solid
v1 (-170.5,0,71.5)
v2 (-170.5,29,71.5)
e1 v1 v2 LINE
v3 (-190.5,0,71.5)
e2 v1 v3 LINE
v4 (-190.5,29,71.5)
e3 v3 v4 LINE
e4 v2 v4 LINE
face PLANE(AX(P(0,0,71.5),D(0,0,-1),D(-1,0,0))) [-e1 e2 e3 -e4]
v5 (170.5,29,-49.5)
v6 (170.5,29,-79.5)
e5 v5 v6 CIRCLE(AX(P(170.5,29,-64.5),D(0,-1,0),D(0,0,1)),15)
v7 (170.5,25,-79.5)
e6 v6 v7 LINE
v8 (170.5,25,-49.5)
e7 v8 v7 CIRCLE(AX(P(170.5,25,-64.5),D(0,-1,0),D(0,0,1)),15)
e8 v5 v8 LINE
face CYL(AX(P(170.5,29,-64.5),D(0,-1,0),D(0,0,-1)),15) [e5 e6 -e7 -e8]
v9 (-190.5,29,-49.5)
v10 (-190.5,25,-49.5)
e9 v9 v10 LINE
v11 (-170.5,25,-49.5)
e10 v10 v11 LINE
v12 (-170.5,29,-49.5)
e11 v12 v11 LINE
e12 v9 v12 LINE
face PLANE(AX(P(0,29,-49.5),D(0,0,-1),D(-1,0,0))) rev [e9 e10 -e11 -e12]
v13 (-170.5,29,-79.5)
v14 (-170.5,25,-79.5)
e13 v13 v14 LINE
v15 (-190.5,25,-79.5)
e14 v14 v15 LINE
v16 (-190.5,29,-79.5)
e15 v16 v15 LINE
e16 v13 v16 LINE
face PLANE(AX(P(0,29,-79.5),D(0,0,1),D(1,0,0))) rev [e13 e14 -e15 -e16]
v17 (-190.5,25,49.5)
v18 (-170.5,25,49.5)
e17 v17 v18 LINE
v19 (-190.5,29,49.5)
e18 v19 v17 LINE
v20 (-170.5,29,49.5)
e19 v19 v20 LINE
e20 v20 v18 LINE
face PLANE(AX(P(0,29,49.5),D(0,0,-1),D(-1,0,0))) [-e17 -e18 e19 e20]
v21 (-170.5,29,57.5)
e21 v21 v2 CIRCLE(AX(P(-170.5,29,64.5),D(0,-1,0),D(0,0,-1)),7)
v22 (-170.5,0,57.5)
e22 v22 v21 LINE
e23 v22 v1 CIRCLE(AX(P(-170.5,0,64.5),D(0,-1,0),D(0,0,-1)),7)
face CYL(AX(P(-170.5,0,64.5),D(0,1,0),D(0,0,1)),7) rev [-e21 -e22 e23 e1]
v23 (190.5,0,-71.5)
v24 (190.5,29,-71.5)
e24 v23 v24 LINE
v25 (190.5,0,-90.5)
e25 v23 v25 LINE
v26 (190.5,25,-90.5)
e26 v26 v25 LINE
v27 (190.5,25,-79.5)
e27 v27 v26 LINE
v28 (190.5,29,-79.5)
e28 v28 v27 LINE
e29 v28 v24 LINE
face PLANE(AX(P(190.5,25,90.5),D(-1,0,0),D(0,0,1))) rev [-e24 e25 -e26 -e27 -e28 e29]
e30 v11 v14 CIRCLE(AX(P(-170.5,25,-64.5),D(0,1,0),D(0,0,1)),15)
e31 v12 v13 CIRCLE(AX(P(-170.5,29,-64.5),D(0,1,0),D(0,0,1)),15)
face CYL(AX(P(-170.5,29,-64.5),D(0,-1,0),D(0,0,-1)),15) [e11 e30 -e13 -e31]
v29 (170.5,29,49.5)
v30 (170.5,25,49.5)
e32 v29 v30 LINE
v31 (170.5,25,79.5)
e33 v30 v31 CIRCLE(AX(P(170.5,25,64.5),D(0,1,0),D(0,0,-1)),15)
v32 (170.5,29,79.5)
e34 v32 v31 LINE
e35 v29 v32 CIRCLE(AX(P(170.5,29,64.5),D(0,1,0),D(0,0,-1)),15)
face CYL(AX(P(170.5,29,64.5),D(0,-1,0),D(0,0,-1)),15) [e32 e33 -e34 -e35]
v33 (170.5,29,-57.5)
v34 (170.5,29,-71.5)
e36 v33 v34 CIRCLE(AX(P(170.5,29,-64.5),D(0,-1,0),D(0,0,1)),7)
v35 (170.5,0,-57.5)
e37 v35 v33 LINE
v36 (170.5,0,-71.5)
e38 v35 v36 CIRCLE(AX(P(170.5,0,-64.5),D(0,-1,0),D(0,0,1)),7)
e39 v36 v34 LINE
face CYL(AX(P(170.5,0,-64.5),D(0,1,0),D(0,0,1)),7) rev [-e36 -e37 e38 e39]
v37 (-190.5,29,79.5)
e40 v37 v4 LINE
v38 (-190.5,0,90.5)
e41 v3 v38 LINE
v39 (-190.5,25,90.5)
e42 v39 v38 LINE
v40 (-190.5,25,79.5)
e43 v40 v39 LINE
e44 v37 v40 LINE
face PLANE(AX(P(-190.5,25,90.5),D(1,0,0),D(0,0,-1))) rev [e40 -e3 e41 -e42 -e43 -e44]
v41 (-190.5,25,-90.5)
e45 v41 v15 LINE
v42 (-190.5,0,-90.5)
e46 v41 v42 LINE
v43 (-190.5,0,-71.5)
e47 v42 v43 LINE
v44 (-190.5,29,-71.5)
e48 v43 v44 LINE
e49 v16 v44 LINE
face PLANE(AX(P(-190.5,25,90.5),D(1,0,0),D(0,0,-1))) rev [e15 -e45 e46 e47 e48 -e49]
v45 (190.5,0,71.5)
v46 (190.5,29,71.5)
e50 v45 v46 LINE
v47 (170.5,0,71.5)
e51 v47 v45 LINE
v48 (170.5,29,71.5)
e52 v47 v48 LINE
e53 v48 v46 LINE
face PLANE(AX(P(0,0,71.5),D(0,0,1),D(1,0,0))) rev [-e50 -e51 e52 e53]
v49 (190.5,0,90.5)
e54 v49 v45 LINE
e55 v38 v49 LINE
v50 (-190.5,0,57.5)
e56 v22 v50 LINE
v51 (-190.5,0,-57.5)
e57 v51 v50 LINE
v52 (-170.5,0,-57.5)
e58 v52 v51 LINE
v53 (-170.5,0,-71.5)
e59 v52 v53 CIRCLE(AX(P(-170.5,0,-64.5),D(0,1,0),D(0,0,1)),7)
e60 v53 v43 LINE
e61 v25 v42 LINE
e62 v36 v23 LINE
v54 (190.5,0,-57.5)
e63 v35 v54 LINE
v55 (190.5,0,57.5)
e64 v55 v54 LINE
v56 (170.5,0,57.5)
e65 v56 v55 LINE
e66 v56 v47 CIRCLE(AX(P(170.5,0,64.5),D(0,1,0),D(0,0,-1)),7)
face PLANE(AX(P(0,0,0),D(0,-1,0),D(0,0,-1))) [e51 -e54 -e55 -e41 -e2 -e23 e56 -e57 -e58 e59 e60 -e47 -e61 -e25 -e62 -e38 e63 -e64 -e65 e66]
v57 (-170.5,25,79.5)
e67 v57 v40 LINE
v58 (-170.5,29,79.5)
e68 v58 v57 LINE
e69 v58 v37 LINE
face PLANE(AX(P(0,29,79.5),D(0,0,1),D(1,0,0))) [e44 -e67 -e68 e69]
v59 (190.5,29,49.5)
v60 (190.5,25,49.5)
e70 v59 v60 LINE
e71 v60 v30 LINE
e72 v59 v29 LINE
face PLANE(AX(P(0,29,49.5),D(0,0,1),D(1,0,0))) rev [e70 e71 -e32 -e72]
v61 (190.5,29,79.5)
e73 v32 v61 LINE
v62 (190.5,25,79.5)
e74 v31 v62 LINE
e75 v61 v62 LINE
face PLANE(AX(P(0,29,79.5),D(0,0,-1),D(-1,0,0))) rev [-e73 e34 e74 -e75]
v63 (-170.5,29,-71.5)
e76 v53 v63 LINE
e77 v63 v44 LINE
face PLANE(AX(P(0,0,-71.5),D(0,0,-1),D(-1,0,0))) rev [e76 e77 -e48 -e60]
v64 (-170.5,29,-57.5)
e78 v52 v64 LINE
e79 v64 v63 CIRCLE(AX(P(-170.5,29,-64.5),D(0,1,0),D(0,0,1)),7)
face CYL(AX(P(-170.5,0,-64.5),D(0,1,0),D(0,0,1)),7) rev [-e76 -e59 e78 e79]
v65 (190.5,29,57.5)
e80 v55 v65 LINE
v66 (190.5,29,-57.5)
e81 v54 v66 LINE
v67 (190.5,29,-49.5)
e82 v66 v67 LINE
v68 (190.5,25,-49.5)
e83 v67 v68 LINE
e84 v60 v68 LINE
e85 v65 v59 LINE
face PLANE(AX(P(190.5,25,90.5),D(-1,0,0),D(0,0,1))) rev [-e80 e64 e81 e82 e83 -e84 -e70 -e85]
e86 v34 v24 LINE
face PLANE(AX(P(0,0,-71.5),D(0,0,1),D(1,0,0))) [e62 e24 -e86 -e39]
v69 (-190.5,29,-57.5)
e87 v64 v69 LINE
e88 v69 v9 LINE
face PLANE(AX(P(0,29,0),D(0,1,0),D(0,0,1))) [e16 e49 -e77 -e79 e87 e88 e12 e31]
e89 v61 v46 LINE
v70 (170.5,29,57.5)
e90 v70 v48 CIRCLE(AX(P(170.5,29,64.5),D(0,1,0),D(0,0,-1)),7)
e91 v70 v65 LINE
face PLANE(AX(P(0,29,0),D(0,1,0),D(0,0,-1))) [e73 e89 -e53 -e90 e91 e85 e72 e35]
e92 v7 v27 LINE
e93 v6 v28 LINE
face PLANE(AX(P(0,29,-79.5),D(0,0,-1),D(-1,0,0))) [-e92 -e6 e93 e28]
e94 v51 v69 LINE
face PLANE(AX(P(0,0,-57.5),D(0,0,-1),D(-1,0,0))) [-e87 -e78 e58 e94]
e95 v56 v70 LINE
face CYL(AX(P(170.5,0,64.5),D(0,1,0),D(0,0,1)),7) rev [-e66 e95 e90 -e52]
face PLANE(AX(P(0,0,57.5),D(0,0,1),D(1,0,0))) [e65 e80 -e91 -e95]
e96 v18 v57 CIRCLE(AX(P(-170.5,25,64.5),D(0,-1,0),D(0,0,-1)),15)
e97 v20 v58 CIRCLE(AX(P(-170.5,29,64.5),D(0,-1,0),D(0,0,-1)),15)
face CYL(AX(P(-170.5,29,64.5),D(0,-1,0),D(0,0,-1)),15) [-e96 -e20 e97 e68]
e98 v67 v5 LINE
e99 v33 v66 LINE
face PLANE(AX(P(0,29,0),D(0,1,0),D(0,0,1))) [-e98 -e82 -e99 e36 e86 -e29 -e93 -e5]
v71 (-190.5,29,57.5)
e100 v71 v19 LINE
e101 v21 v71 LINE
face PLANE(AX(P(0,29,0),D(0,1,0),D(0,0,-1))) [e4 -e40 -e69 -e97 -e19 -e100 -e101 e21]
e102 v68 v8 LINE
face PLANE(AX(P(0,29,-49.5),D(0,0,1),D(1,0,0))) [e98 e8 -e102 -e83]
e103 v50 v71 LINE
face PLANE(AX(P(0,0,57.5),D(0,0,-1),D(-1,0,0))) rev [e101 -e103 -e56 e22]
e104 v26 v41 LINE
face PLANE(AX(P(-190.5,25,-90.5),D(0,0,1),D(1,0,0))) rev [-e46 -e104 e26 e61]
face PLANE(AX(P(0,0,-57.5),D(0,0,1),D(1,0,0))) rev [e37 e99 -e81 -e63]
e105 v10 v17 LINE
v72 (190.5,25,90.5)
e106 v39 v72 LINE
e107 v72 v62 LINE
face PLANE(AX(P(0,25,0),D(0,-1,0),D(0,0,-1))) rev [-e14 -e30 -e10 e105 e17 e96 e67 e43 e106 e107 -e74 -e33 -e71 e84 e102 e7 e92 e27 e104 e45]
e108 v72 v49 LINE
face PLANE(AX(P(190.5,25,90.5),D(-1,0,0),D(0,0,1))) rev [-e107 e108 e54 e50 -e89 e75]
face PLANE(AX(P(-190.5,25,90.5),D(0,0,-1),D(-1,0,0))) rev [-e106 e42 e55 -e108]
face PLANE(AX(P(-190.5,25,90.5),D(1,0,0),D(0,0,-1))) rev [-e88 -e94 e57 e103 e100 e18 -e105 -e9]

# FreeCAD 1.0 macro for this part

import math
import FreeCAD as App
import Part
import Sketcher


def add_polygon(sketch, points):
    """Adds a closed chain of lines whose ends are joined by coincident constraints."""
    first, n = sketch.GeometryCount, len(points)
    for a, b in zip(points, points[1:] + points[:1]):
        sketch.addGeometry(Part.LineSegment(App.Vector(*a, 0), App.Vector(*b, 0)), False)
    for i in range(n):
        sketch.addConstraint(Sketcher.Constraint("Coincident", first + i, 2, first + (i + 1) % n, 1))

doc = App.newDocument("Part")
body = doc.addObject("PartDesign::Body", "Body")

sketch1 = body.newObject("Sketcher::SketchObject", "Sketch")
sketch1.AttachmentSupport = (doc.getObject("XZ_Plane"), [""])
sketch1.MapMode = "FlatFace"
add_polygon(sketch1, [(-190, -90), (-190, 90), (190, 90), (190, -90)])
sketch1.addConstraint([
    Sketcher.Constraint("Vertical", 0),
    Sketcher.Constraint("Horizontal", 1),
    Sketcher.Constraint("Vertical", 2),
    Sketcher.Constraint("Horizontal", 3),
    Sketcher.Constraint("Symmetric", 0, 2, 2, 2, -1, 1),
    Sketcher.Constraint("DistanceX", 1, 1, 1, 2, 381.0),
    Sketcher.Constraint("DistanceY", 0, 1, 0, 2, 181.0),
])
pad1 = body.newObject("PartDesign::Pad", "Pad")
pad1.Profile = sketch1
pad1.Length = 25
pad1.Reversed = True

sketch2 = body.newObject("Sketcher::SketchObject", "Sketch001")
sketch2.AttachmentSupport = (doc.getObject("XZ_Plane"), [""])
sketch2.MapMode = "FlatFace"
sketch2.AttachmentOffset = App.Placement(App.Vector(0, 0, -25), App.Rotation())
sketch2.addGeometry([
    Part.LineSegment(App.Vector(-190, -58, 0), App.Vector(-170, -58, 0)),
    Part.ArcOfCircle(Part.Circle(App.Vector(-170, -64, 0), App.Vector(0, 0, 1), 7), math.radians(-90), math.radians(90)),
    Part.LineSegment(App.Vector(-170, -72, 0), App.Vector(-190, -72, 0)),
    Part.LineSegment(App.Vector(-190, -72, 0), App.Vector(-190, -58, 0)),
], False)
sketch2.addConstraint([
    Sketcher.Constraint("Tangent", 0, 2, 1, 2),
    Sketcher.Constraint("Tangent", 1, 1, 2, 1),
    Sketcher.Constraint("Coincident", 2, 2, 3, 1),
    Sketcher.Constraint("Coincident", 3, 2, 0, 1),
    Sketcher.Constraint("Horizontal", 0),
    Sketcher.Constraint("Horizontal", 2),
    Sketcher.Constraint("Vertical", 3),
    Sketcher.Constraint("Radius", 1, 7.0),
    Sketcher.Constraint("DistanceX", 0, 1, 0, 2, 20.0),
    Sketcher.Constraint("DistanceX", 1, 3, -1, 1, 170.5),
    Sketcher.Constraint("DistanceY", 1, 3, -1, 1, 64.5),
])
pocket1 = body.newObject("PartDesign::Pocket", "Pocket")
pocket1.Profile = sketch2
pocket1.Length = 25
pocket1.Reversed = True

sketch3 = body.newObject("Sketcher::SketchObject", "Sketch002")
sketch3.AttachmentSupport = (doc.getObject("XZ_Plane"), [""])
sketch3.MapMode = "FlatFace"
sketch3.AttachmentOffset = App.Placement(App.Vector(0, 0, -29), App.Rotation())
sketch3.addGeometry([
    Part.ArcOfCircle(Part.Circle(App.Vector(-170, -64, 0), App.Vector(0, 0, 1), 7), math.radians(-90), math.radians(90)),
    Part.LineSegment(App.Vector(-170, -58, 0), App.Vector(-190, -58, 0)),
    Part.LineSegment(App.Vector(-190, -58, 0), App.Vector(-190, -50, 0)),
    Part.LineSegment(App.Vector(-190, -50, 0), App.Vector(-170, -50, 0)),
    Part.ArcOfCircle(Part.Circle(App.Vector(-170, -64, 0), App.Vector(0, 0, 1), 15), math.radians(-90), math.radians(90)),
    Part.LineSegment(App.Vector(-170, -80, 0), App.Vector(-190, -80, 0)),
    Part.LineSegment(App.Vector(-190, -80, 0), App.Vector(-190, -72, 0)),
    Part.LineSegment(App.Vector(-190, -72, 0), App.Vector(-170, -72, 0)),
], False)
sketch3.addConstraint([
    Sketcher.Constraint("Tangent", 0, 2, 1, 1),
    Sketcher.Constraint("Coincident", 1, 2, 2, 1),
    Sketcher.Constraint("Coincident", 2, 2, 3, 1),
    Sketcher.Constraint("Tangent", 3, 2, 4, 2),
    Sketcher.Constraint("Tangent", 4, 1, 5, 1),
    Sketcher.Constraint("Coincident", 5, 2, 6, 1),
    Sketcher.Constraint("Coincident", 6, 2, 7, 1),
    Sketcher.Constraint("Tangent", 7, 2, 0, 1),
    Sketcher.Constraint("Horizontal", 1),
    Sketcher.Constraint("Vertical", 2),
    Sketcher.Constraint("Horizontal", 3),
    Sketcher.Constraint("Horizontal", 5),
    Sketcher.Constraint("Vertical", 6),
    Sketcher.Constraint("Horizontal", 7),
    Sketcher.Constraint("Coincident", 4, 3, 0, 3),
    Sketcher.Constraint("Vertical", 2, 2, 5, 2),
    Sketcher.Constraint("Radius", 0, 7.0),
    Sketcher.Constraint("Radius", 4, 15.0),
    Sketcher.Constraint("DistanceX", 1, 2, 1, 1, 20.0),
    Sketcher.Constraint("DistanceX", 0, 3, -1, 1, 170.5),
    Sketcher.Constraint("DistanceY", 0, 3, -1, 1, 64.5),
])
pad2 = body.newObject("PartDesign::Pad", "Pad001")
pad2.Profile = sketch3
pad2.Length = 4
doc.recompute()

mirrored = body.newObject("PartDesign::Mirrored", "Mirrored")
mirrored.Originals = [pocket1, pad2]
mirrored.MirrorPlane = (doc.getObject("XY_Plane"), [""])
body.Tip = mirrored
doc.recompute()

mirrored2 = body.newObject("PartDesign::Mirrored", "Mirrored001")
mirrored2.Originals = [pad2]
mirrored2.MirrorPlane = (doc.getObject("YZ_Plane"), [""])
body.Tip = mirrored2

sketch4 = body.newObject("Sketcher::SketchObject", "Sketch003")
sketch4.AttachmentSupport = (doc.getObject("XZ_Plane"), [""])
sketch4.MapMode = "FlatFace"
sketch4.AttachmentOffset = App.Placement(App.Vector(0, 0, -25), App.Rotation())
sketch4.addGeometry([
    Part.LineSegment(App.Vector(190, 58, 0), App.Vector(170, 58, 0)),
    Part.ArcOfCircle(Part.Circle(App.Vector(170, 64, 0), App.Vector(0, 0, 1), 7), math.radians(90), math.radians(270)),
    Part.LineSegment(App.Vector(170, 72, 0), App.Vector(190, 72, 0)),
    Part.LineSegment(App.Vector(190, 72, 0), App.Vector(190, 58, 0)),
], False)
sketch4.addConstraint([
    Sketcher.Constraint("Tangent", 0, 2, 1, 2),
    Sketcher.Constraint("Tangent", 1, 1, 2, 1),
    Sketcher.Constraint("Coincident", 2, 2, 3, 1),
    Sketcher.Constraint("Coincident", 3, 2, 0, 1),
    Sketcher.Constraint("Horizontal", 0),
    Sketcher.Constraint("Horizontal", 2),
    Sketcher.Constraint("Vertical", 3),
    Sketcher.Constraint("Radius", 1, 7.0),
    Sketcher.Constraint("DistanceX", 0, 2, 0, 1, 20.0),
    Sketcher.Constraint("DistanceX", -1, 1, 1, 3, 170.5),
    Sketcher.Constraint("DistanceY", -1, 1, 1, 3, 64.5),
])
pocket2 = body.newObject("PartDesign::Pocket", "Pocket001")
pocket2.Profile = sketch4
pocket2.Length = 25
pocket2.Reversed = True

sketch5 = body.newObject("Sketcher::SketchObject", "Sketch004")
sketch5.AttachmentSupport = (doc.getObject("XZ_Plane"), [""])
sketch5.MapMode = "FlatFace"
sketch5.AttachmentOffset = App.Placement(App.Vector(0, 0, -29), App.Rotation())
sketch5.addGeometry([
    Part.ArcOfCircle(Part.Circle(App.Vector(170, 64, 0), App.Vector(0, 0, 1), 7), math.radians(90), math.radians(270)),
    Part.LineSegment(App.Vector(170, 58, 0), App.Vector(190, 58, 0)),
    Part.LineSegment(App.Vector(190, 58, 0), App.Vector(190, 50, 0)),
    Part.LineSegment(App.Vector(190, 50, 0), App.Vector(170, 50, 0)),
    Part.ArcOfCircle(Part.Circle(App.Vector(170, 64, 0), App.Vector(0, 0, 1), 15), math.radians(90), math.radians(270)),
    Part.LineSegment(App.Vector(170, 80, 0), App.Vector(190, 80, 0)),
    Part.LineSegment(App.Vector(190, 80, 0), App.Vector(190, 72, 0)),
    Part.LineSegment(App.Vector(190, 72, 0), App.Vector(170, 72, 0)),
], False)
sketch5.addConstraint([
    Sketcher.Constraint("Tangent", 0, 2, 1, 1),
    Sketcher.Constraint("Coincident", 1, 2, 2, 1),
    Sketcher.Constraint("Coincident", 2, 2, 3, 1),
    Sketcher.Constraint("Tangent", 3, 2, 4, 2),
    Sketcher.Constraint("Tangent", 4, 1, 5, 1),
    Sketcher.Constraint("Coincident", 5, 2, 6, 1),
    Sketcher.Constraint("Coincident", 6, 2, 7, 1),
    Sketcher.Constraint("Tangent", 7, 2, 0, 1),
    Sketcher.Constraint("Horizontal", 1),
    Sketcher.Constraint("Vertical", 2),
    Sketcher.Constraint("Horizontal", 3),
    Sketcher.Constraint("Horizontal", 5),
    Sketcher.Constraint("Vertical", 6),
    Sketcher.Constraint("Horizontal", 7),
    Sketcher.Constraint("Coincident", 4, 3, 0, 3),
    Sketcher.Constraint("Vertical", 2, 2, 5, 2),
    Sketcher.Constraint("Radius", 0, 7.0),
    Sketcher.Constraint("Radius", 4, 15.0),
    Sketcher.Constraint("DistanceX", 1, 1, 1, 2, 20.0),
    Sketcher.Constraint("DistanceX", -1, 1, 0, 3, 170.5),
    Sketcher.Constraint("DistanceY", -1, 1, 0, 3, 64.5),
])
pad3 = body.newObject("PartDesign::Pad", "Pad002")
pad3.Profile = sketch5
pad3.Length = 4

sketch6 = body.newObject("Sketcher::SketchObject", "Sketch005")
sketch6.AttachmentSupport = (doc.getObject("XZ_Plane"), [""])
sketch6.MapMode = "FlatFace"
sketch6.AttachmentOffset = App.Placement(App.Vector(0, 0, -25), App.Rotation())
sketch6.addGeometry([
    Part.LineSegment(App.Vector(170, -58, 0), App.Vector(190, -58, 0)),
    Part.LineSegment(App.Vector(190, -58, 0), App.Vector(190, -72, 0)),
    Part.LineSegment(App.Vector(190, -72, 0), App.Vector(170, -72, 0)),
    Part.ArcOfCircle(Part.Circle(App.Vector(170, -64, 0), App.Vector(0, 0, 1), 7), math.radians(90), math.radians(270)),
], False)
sketch6.addConstraint([
    Sketcher.Constraint("Coincident", 0, 2, 1, 1),
    Sketcher.Constraint("Coincident", 1, 2, 2, 1),
    Sketcher.Constraint("Tangent", 2, 2, 3, 2),
    Sketcher.Constraint("Tangent", 3, 1, 0, 1),
    Sketcher.Constraint("Horizontal", 0),
    Sketcher.Constraint("Vertical", 1),
    Sketcher.Constraint("Horizontal", 2),
    Sketcher.Constraint("Radius", 3, 7.0),
    Sketcher.Constraint("DistanceX", 0, 1, 0, 2, 20.0),
    Sketcher.Constraint("DistanceX", -1, 1, 3, 3, 170.5),
    Sketcher.Constraint("DistanceY", 3, 3, -1, 1, 64.5),
])
pocket3 = body.newObject("PartDesign::Pocket", "Pocket002")
pocket3.Profile = sketch6
pocket3.Length = 25
pocket3.Reversed = True

doc.recompute()
